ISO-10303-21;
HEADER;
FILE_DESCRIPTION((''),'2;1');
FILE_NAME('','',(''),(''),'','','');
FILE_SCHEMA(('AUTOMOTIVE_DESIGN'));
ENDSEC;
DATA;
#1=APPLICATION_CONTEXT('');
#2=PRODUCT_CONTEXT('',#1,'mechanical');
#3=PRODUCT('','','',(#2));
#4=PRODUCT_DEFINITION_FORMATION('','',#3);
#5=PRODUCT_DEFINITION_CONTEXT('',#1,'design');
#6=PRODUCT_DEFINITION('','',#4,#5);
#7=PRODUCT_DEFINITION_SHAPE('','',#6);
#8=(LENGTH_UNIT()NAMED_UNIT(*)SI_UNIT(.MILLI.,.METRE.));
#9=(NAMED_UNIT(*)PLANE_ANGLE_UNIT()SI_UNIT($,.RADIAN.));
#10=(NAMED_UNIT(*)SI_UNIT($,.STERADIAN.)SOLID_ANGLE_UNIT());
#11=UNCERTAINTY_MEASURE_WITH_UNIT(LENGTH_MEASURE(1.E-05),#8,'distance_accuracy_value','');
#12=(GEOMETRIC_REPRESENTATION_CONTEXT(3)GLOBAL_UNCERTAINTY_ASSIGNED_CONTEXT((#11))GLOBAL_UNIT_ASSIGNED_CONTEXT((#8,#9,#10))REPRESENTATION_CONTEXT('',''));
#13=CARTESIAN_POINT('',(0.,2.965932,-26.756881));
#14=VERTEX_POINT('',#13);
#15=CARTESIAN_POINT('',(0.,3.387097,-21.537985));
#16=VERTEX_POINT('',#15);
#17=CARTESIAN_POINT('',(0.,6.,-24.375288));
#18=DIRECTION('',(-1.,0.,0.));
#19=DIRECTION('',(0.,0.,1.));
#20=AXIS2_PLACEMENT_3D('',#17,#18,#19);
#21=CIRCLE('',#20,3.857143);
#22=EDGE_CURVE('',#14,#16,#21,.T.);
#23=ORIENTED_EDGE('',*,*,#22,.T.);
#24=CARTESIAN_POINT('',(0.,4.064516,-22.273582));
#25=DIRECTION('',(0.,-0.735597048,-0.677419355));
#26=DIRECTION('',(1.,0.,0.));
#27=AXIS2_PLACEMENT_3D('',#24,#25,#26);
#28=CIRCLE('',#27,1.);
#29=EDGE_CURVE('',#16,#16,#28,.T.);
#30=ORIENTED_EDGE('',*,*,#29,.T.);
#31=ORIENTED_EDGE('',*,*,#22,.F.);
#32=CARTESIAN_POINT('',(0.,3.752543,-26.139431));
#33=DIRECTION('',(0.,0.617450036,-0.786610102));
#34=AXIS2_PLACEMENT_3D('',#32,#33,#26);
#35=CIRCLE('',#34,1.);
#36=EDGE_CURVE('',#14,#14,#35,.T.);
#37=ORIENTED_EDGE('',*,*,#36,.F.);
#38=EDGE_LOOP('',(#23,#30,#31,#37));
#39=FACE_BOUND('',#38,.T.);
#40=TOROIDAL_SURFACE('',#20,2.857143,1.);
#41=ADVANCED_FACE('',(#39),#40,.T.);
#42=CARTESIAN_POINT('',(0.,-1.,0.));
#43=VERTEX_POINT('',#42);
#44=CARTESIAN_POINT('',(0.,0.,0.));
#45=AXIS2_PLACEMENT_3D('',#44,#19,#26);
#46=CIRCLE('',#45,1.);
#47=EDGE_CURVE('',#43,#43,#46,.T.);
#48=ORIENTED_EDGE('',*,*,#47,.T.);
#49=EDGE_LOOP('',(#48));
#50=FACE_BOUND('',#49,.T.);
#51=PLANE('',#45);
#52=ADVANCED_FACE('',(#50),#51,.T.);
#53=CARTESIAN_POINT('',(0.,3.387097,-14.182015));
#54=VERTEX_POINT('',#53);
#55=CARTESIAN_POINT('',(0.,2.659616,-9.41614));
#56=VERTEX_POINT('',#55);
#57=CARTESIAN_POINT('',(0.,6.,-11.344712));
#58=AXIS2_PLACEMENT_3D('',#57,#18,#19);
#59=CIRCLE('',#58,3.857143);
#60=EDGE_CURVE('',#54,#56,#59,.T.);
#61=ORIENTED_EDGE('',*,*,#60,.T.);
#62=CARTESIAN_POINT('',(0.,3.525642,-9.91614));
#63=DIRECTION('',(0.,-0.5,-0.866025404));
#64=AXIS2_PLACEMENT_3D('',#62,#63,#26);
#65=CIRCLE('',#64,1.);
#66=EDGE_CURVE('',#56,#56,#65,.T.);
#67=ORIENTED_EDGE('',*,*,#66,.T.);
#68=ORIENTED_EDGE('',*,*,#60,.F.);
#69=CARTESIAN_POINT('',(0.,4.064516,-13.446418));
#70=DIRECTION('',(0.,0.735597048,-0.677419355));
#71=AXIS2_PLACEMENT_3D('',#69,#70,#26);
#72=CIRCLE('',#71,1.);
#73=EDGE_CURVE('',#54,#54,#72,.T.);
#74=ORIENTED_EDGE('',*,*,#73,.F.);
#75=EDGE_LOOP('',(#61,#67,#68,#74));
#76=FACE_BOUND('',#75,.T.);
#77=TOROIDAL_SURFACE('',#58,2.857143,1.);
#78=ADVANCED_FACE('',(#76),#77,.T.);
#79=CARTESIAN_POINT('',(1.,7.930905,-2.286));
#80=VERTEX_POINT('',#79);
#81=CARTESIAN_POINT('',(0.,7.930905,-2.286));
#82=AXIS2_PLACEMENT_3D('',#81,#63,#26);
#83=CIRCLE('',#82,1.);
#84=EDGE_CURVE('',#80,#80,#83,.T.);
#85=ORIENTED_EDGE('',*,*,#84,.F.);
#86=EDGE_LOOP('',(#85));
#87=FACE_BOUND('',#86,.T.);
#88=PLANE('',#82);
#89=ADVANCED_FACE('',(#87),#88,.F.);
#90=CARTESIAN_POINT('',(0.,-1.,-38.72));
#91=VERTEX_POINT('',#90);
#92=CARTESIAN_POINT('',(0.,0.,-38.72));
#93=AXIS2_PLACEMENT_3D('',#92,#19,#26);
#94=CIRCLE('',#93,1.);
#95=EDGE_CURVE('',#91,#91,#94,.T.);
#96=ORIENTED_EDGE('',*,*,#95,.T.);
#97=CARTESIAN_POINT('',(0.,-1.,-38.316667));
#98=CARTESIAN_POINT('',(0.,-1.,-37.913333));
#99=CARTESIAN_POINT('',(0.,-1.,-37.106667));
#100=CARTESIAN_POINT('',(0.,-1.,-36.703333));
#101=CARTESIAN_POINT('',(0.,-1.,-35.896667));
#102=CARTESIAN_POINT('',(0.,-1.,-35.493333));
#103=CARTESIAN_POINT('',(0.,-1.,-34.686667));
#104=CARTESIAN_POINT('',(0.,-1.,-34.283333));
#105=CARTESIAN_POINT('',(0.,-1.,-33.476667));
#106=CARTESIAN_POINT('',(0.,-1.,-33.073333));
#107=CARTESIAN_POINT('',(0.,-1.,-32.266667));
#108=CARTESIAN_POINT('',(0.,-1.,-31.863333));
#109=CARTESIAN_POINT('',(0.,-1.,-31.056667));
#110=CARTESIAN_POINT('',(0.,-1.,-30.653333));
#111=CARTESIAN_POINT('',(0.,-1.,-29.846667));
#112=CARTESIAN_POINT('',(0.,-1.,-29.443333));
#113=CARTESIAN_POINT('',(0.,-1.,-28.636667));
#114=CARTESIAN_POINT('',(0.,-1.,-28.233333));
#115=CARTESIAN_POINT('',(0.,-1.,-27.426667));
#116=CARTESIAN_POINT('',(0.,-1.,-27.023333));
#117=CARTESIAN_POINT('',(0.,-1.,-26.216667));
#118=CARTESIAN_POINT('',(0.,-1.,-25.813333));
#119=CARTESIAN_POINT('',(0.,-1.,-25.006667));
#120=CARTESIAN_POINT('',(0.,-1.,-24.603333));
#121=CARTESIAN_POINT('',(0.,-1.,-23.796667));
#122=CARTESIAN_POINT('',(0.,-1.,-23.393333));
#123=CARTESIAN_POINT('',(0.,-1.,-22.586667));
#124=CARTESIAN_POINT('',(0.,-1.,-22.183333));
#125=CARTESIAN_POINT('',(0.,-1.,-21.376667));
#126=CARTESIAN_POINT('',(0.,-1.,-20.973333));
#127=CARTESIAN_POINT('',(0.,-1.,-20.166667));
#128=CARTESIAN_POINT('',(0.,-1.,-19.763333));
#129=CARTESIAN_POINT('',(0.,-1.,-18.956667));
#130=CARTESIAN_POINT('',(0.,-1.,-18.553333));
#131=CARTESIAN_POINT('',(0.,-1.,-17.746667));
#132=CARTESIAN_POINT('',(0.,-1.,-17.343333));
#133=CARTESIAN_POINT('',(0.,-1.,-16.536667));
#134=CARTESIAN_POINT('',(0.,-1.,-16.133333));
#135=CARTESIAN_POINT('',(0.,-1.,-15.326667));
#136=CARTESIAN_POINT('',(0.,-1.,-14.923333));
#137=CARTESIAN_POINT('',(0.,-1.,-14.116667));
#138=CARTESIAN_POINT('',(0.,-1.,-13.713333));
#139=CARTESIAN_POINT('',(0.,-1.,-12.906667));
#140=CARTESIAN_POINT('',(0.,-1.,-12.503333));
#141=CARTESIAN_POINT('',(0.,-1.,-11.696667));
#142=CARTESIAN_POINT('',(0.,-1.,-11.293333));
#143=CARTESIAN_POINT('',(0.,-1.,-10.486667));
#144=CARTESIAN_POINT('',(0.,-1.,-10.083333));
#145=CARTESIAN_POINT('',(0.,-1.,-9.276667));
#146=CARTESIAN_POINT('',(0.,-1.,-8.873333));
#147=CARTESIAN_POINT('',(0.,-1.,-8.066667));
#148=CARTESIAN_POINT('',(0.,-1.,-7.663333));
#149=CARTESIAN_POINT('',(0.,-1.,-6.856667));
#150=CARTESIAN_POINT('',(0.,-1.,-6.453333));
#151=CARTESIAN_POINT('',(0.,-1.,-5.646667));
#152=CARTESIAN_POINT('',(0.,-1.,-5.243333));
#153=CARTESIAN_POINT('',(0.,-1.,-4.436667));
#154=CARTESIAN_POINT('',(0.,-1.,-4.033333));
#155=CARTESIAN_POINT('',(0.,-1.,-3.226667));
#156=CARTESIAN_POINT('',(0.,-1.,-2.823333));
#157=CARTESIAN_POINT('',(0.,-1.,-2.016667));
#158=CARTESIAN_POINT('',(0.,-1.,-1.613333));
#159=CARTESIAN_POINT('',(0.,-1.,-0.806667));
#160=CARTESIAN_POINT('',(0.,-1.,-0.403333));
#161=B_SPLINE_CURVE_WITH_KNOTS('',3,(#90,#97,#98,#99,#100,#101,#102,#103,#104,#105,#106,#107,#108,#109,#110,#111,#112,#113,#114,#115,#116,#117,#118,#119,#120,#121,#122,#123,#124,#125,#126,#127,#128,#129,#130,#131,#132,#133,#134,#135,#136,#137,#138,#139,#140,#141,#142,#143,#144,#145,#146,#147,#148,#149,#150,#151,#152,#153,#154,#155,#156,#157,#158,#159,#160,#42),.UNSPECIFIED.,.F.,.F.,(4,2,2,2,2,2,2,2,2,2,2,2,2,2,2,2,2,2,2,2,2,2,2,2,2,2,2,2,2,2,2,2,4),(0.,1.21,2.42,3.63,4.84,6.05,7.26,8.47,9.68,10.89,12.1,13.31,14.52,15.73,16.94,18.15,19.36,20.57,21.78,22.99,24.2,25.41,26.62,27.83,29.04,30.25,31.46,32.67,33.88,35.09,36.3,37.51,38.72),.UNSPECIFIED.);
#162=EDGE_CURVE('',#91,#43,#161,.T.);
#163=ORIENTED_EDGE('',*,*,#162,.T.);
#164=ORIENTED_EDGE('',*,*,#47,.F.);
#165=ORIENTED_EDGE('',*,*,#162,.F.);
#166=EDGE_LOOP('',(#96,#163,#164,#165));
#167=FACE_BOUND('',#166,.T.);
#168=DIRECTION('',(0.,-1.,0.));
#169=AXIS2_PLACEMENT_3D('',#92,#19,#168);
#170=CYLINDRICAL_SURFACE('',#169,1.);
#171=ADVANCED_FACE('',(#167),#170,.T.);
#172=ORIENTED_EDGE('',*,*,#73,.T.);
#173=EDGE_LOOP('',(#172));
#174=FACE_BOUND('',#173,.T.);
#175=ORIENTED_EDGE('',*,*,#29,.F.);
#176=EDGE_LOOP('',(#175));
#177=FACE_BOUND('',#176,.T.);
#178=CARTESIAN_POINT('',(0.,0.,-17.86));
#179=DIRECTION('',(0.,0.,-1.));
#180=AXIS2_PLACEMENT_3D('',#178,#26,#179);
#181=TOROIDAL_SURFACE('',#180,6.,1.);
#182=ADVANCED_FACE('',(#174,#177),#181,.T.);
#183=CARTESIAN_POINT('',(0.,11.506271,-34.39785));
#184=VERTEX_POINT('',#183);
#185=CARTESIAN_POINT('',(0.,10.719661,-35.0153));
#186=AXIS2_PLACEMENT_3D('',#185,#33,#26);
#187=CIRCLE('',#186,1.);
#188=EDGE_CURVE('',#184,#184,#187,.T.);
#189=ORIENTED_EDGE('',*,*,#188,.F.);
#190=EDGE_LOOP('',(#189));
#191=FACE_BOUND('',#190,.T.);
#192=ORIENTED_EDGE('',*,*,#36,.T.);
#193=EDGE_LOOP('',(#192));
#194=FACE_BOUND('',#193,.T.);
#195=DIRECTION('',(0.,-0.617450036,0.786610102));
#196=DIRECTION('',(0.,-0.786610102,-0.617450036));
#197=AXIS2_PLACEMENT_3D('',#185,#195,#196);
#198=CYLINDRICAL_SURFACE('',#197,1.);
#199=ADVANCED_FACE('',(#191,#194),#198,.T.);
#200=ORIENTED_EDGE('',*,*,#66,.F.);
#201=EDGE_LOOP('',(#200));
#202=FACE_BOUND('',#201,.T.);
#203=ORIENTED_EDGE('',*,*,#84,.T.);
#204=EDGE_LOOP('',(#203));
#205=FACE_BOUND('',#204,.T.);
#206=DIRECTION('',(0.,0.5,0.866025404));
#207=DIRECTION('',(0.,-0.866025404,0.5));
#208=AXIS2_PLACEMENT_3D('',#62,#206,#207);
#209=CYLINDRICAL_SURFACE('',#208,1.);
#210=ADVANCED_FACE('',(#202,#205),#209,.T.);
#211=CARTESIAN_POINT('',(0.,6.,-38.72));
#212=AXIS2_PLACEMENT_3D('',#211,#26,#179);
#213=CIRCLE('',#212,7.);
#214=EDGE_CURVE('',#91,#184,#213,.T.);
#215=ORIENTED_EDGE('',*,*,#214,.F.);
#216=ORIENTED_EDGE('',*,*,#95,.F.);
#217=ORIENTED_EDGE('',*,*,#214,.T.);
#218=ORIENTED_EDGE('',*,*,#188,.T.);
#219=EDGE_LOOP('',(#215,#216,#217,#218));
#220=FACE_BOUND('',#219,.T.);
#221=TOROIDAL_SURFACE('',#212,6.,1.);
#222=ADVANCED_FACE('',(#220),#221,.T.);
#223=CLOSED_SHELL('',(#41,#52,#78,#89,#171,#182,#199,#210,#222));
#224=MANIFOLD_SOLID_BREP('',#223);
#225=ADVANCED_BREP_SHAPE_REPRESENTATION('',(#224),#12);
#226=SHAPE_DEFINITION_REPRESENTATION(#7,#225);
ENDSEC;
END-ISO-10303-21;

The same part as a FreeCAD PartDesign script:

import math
import FreeCAD as App
import Part
import Sketcher

V = App.Vector
Q = App.Units.Quantity

doc = App.newDocument("Part")
params = doc.addObject("Spreadsheet::Sheet", "Params")
for row, (alias, value) in enumerate([
    ("sketch1_diameter", "2 mm"),
    ("sketch2_radius", "6 mm"),
    ("sketch2_height", "38.72 mm"),
], start=1):
    params.set(f"A{row}", alias)
    params.set(f"B{row}", "=" + value)
    params.setAlias(f"B{row}", alias)

body = doc.addObject("PartDesign::Body", "Body")

# Sketch on XY plane
sketch1 = body.newObject("Sketcher::SketchObject", "Sketch")
sketch1.AttachmentSupport = (doc.getObject("XY_Plane"), [""])
sketch1.MapMode = "FlatFace"
sketch1.addGeometry(Part.Circle(V(0, 0, 0), V(0, 0, 1), 1), False)
sketch1.addConstraint(Sketcher.Constraint("Coincident", 0, 3, -1, 1))
sketch1.addConstraint(Sketcher.Constraint("Diameter", 0, Q("2 mm")))
sketch1.setExpression("Constraints[1]", "Params.sketch1_diameter")

# Sketch on YZ plane
sketch2 = body.newObject("Sketcher::SketchObject", "Sketch001")
sketch2.AttachmentSupport = (doc.getObject("YZ_Plane"), [""])
sketch2.MapMode = "FlatFace"
sketch2.addGeometry(Part.LineSegment(V(0, 0, 0), V(0, -38.7, 0)), False)
sketch2.addGeometry(Part.ArcOfCircle(Part.Circle(V(6, -38.7, 0), V(0, 0, 1), 6), math.radians(180), math.radians(398)), False)
sketch2.addGeometry(Part.LineSegment(V(10.7, -35, 0), V(3.8, -26.1, 0)), False)
sketch2.addGeometry(Part.ArcOfCircle(Part.Circle(V(6, -24.4, 0), V(0, 0, 1), 2.9), math.radians(133), math.radians(218)), False)
sketch2.addGeometry(Part.ArcOfCircle(Part.Circle(V(0, -17.9, 0), V(0, 0, 1), 6), math.radians(-47), math.radians(47)), False)
sketch2.addGeometry(Part.ArcOfCircle(Part.Circle(V(6, -11.3, 0), V(0, 0, 1), 2.9), math.radians(150), math.radians(227)), False)
sketch2.addGeometry(Part.LineSegment(V(3.5, -9.9, 0), V(7.9, -2.3, 0)), False)
sketch2.addConstraint(Sketcher.Constraint("Tangent", 0, 2, 1, 1))
sketch2.addConstraint(Sketcher.Constraint("Tangent", 1, 2, 2, 1))
sketch2.addConstraint(Sketcher.Constraint("Tangent", 2, 2, 3, 2))
sketch2.addConstraint(Sketcher.Constraint("Tangent", 3, 1, 4, 1))
sketch2.addConstraint(Sketcher.Constraint("Tangent", 4, 2, 5, 2))
sketch2.addConstraint(Sketcher.Constraint("Tangent", 5, 1, 6, 1))
sketch2.addConstraint(Sketcher.Constraint("Vertical", 0))
sketch2.addConstraint(Sketcher.Constraint("Coincident", 0, 1, -1, 1))
sketch2.addConstraint(Sketcher.Constraint("Equal", 1, 4))
sketch2.addConstraint(Sketcher.Constraint("Equal", 3, 5))
sketch2.addConstraint(Sketcher.Constraint("PointOnObject", 4, 3, -2))
sketch2.addConstraint(Sketcher.Constraint("Vertical", 1, 3, 3, 3))
sketch2.addConstraint(Sketcher.Constraint("Vertical", 3, 3, 5, 3))
sketch2.addConstraint(Sketcher.Constraint("Radius", 1, Q("6 mm")))
sketch2.addConstraint(Sketcher.Constraint("Angle", 6, Q("60 deg")))
sketch2.addConstraint(Sketcher.Constraint("DistanceY", 0, 2, 0, 1, Q("38.72 mm")))
sketch2.addConstraint(Sketcher.Constraint("DistanceY", 4, 3, -1, 1, Q("17.86 mm")))
sketch2.addConstraint(Sketcher.Constraint("DistanceY", 6, 2, -1, 1, Q("2.286 mm")))
sketch2.addConstraint(Sketcher.Constraint("Radius", 3, Q("2.857143 mm")))
sketch2.setExpression("Constraints[13]", "Params.sketch2_radius")
sketch2.setExpression("Constraints[15]", "Params.sketch2_height")
doc.recompute()

additivepipe = body.newObject("PartDesign::AdditivePipe", "AdditivePipe")
additivepipe.Profile = sketch1
additivepipe.Spine = (sketch2, ["Edge1", "Edge2", "Edge3", "Edge4", "Edge5", "Edge6", "Edge7"])

doc.recompute()
